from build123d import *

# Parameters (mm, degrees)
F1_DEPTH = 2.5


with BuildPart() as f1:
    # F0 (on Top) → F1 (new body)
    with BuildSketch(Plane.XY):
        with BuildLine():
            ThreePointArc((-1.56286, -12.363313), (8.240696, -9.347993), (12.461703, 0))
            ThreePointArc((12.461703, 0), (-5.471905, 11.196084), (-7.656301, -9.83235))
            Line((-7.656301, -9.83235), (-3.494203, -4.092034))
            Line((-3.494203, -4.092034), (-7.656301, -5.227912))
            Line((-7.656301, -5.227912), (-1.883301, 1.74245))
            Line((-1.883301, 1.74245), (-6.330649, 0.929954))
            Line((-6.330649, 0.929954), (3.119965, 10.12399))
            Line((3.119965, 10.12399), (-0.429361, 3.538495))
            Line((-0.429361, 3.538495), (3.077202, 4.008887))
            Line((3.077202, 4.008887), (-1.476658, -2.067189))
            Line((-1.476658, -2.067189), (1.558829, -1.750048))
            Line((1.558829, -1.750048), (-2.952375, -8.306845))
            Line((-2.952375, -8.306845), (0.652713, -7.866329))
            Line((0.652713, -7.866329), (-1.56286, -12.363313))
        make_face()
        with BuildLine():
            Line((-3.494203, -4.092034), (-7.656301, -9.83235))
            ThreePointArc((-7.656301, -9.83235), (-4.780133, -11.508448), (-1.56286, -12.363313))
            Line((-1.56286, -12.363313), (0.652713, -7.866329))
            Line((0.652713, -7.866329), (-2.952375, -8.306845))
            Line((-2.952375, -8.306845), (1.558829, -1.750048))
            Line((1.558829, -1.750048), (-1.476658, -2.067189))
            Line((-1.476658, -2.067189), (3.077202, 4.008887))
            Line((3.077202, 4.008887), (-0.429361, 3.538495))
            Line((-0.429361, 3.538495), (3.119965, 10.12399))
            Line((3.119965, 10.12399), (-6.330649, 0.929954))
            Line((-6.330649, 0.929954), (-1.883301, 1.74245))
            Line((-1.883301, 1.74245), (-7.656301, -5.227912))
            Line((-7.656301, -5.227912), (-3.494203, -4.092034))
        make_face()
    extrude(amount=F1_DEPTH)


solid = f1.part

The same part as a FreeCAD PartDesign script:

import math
import FreeCAD as App
import Part
import Sketcher

V = App.Vector
Q = App.Units.Quantity

doc = App.newDocument("Part")
body = doc.addObject("PartDesign::Body", "Body")

sketch1 = doc.addObject("Sketcher::SketchObject", "Sketch")
body.addObject(sketch1)
sketch1.AttachmentSupport = (doc.XY_Plane, [""])
sketch1.MapMode = "FlatFace"
sketch1.addGeometry([
    Part.ArcOfCircle(Part.Circle(V(0, 0, 0), V(0, 0, 1), 12), math.radians(-97), math.radians(0)),
    Part.ArcOfCircle(Part.Circle(V(0, 0, 0), V(0, 0, 1), 12), math.radians(0), math.radians(232)),
    Part.ArcOfCircle(Part.Circle(V(0, 0, 0), V(0, 0, 1), 12), math.radians(-128), math.radians(-97)),
], False)
sketch1.addConstraint([
    Sketcher.Constraint("Tangent", 0, 2, 1, 1),
    Sketcher.Constraint("Tangent", 1, 2, 2, 1),
    Sketcher.Constraint("Tangent", 2, 2, 0, 1),
    Sketcher.Constraint("Coincident", 0, 3, -1, 1),
    Sketcher.Constraint("PointOnObject", 0, 2, -1),
    Sketcher.Constraint("Radius", 2, Q("12.461702 mm")),
    Sketcher.Constraint("DistanceX", 1, 2, -1, 1, Q("7.656301 mm")),
    Sketcher.Constraint("DistanceX", 2, 2, -1, 1, Q("1.56286 mm")),
])
pad1 = doc.addObject("PartDesign::Pad", "Pad")
body.addObject(pad1)
pad1.Profile = sketch1
pad1.Length = 2.5

doc.recompute()
